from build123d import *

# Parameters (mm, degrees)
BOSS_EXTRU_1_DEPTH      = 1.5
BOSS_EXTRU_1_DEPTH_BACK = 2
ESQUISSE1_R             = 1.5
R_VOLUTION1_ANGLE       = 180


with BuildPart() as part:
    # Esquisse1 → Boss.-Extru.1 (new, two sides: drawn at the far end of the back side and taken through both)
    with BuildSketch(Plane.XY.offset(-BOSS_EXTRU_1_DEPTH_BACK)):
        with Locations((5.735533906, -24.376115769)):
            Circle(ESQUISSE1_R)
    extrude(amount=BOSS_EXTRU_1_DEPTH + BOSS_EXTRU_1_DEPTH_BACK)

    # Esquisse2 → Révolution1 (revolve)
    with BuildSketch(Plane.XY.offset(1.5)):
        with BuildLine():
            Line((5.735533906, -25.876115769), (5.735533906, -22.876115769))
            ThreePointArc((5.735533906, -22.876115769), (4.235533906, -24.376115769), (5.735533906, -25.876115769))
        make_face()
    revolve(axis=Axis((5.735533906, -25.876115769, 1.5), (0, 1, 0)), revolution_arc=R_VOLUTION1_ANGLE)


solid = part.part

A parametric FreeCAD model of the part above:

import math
import FreeCAD as App
import Part
import Sketcher
Q = App.Units.Quantity

doc = App.newDocument("Part")
params = doc.addObject("Spreadsheet::Sheet", "Params")
for row, (alias, value) in enumerate([
    ("sketch1_diameter", "3 mm"),
    ("pad1_length", "1.5 mm"),
    ("pad1_length2", "2 mm"),
    ("sketch2_radius", "1.5 mm"),
    ("revolution_angle", "180 deg"),
], start=1):
    params.set(f"A{row}", alias)
    params.set(f"B{row}", "=" + value)
    params.setAlias(f"B{row}", alias)

body = doc.addObject("PartDesign::Body", "Body")

# Sketch on XY plane
sketch1 = doc.addObject("Sketcher::SketchObject", "Sketch")
body.addObject(sketch1)
sketch1.AttachmentSupport = (doc.XY_Plane, [""])
sketch1.MapMode = "FlatFace"
sketch1.addGeometry(Part.Circle(App.Vector(5.735534, -24.376116, 0), App.Vector(0, 0, 1), 1.5), False)
sketch1.addConstraint([
    Sketcher.Constraint("Diameter", 0, Q("3 mm")),
    Sketcher.Constraint("DistanceX", -1, 1, 0, 3, Q("5.735534 mm")),
    Sketcher.Constraint("DistanceY", 0, 3, -1, 1, Q("24.376116 mm")),
])
sketch1.setExpression("Constraints[0]", "Params.sketch1_diameter")
pad1 = doc.addObject("PartDesign::Pad", "Pad")
body.addObject(pad1)
pad1.Profile = sketch1
pad1.Type = "TwoLengths"
pad1.setExpression("Length", "Params.pad1_length")
pad1.setExpression("Length2", "Params.pad1_length2")

# Sketch on XY plane
sketch2 = doc.addObject("Sketcher::SketchObject", "Sketch001")
body.addObject(sketch2)
sketch2.AttachmentSupport = (doc.XY_Plane, [""])
sketch2.MapMode = "FlatFace"
sketch2.AttachmentOffset = App.Placement(App.Vector(0, 0, 1.5), App.Rotation())
sketch2.addGeometry([
    Part.LineSegment(App.Vector(5.735534, -25.876116, 0), App.Vector(5.735534, -22.876116, 0)),
    Part.ArcOfCircle(Part.Circle(App.Vector(5.735534, -24.376116, 0), App.Vector(0, 0, 1), 1.5), math.radians(90), math.radians(270)),
], False)
sketch2.addGeometry(Part.LineSegment(App.Vector(5.735534, -25.876116, 0), App.Vector(5.735534, -22.876116, 0)), True)  # axis
sketch2.addConstraint([
    Sketcher.Constraint("Coincident", 0, 1, 1, 2),
    Sketcher.Constraint("Coincident", 1, 1, 0, 2),
    Sketcher.Constraint("Vertical", 0),
    Sketcher.Constraint("Vertical", 2),
    Sketcher.Constraint("Coincident", 2, 1, 0, 1),
    Sketcher.Constraint("Vertical", 1, 3, 0, 1),
    Sketcher.Constraint("Equal", 0, 2),
    Sketcher.Constraint("Radius", 1, Q("1.5 mm")),
    Sketcher.Constraint("DistanceX", -1, 1, 1, 3, Q("5.735534 mm")),
    Sketcher.Constraint("DistanceY", 1, 3, -1, 1, Q("24.376116 mm")),
])
sketch2.setExpression("Constraints[7]", "Params.sketch2_radius")
revolution = doc.addObject("PartDesign::Revolution", "Revolution")
body.addObject(revolution)
revolution.Profile = sketch2
revolution.ReferenceAxis = (sketch2, ["Axis0"])
revolution.setExpression("Angle", "Params.revolution_angle")

doc.recompute()
